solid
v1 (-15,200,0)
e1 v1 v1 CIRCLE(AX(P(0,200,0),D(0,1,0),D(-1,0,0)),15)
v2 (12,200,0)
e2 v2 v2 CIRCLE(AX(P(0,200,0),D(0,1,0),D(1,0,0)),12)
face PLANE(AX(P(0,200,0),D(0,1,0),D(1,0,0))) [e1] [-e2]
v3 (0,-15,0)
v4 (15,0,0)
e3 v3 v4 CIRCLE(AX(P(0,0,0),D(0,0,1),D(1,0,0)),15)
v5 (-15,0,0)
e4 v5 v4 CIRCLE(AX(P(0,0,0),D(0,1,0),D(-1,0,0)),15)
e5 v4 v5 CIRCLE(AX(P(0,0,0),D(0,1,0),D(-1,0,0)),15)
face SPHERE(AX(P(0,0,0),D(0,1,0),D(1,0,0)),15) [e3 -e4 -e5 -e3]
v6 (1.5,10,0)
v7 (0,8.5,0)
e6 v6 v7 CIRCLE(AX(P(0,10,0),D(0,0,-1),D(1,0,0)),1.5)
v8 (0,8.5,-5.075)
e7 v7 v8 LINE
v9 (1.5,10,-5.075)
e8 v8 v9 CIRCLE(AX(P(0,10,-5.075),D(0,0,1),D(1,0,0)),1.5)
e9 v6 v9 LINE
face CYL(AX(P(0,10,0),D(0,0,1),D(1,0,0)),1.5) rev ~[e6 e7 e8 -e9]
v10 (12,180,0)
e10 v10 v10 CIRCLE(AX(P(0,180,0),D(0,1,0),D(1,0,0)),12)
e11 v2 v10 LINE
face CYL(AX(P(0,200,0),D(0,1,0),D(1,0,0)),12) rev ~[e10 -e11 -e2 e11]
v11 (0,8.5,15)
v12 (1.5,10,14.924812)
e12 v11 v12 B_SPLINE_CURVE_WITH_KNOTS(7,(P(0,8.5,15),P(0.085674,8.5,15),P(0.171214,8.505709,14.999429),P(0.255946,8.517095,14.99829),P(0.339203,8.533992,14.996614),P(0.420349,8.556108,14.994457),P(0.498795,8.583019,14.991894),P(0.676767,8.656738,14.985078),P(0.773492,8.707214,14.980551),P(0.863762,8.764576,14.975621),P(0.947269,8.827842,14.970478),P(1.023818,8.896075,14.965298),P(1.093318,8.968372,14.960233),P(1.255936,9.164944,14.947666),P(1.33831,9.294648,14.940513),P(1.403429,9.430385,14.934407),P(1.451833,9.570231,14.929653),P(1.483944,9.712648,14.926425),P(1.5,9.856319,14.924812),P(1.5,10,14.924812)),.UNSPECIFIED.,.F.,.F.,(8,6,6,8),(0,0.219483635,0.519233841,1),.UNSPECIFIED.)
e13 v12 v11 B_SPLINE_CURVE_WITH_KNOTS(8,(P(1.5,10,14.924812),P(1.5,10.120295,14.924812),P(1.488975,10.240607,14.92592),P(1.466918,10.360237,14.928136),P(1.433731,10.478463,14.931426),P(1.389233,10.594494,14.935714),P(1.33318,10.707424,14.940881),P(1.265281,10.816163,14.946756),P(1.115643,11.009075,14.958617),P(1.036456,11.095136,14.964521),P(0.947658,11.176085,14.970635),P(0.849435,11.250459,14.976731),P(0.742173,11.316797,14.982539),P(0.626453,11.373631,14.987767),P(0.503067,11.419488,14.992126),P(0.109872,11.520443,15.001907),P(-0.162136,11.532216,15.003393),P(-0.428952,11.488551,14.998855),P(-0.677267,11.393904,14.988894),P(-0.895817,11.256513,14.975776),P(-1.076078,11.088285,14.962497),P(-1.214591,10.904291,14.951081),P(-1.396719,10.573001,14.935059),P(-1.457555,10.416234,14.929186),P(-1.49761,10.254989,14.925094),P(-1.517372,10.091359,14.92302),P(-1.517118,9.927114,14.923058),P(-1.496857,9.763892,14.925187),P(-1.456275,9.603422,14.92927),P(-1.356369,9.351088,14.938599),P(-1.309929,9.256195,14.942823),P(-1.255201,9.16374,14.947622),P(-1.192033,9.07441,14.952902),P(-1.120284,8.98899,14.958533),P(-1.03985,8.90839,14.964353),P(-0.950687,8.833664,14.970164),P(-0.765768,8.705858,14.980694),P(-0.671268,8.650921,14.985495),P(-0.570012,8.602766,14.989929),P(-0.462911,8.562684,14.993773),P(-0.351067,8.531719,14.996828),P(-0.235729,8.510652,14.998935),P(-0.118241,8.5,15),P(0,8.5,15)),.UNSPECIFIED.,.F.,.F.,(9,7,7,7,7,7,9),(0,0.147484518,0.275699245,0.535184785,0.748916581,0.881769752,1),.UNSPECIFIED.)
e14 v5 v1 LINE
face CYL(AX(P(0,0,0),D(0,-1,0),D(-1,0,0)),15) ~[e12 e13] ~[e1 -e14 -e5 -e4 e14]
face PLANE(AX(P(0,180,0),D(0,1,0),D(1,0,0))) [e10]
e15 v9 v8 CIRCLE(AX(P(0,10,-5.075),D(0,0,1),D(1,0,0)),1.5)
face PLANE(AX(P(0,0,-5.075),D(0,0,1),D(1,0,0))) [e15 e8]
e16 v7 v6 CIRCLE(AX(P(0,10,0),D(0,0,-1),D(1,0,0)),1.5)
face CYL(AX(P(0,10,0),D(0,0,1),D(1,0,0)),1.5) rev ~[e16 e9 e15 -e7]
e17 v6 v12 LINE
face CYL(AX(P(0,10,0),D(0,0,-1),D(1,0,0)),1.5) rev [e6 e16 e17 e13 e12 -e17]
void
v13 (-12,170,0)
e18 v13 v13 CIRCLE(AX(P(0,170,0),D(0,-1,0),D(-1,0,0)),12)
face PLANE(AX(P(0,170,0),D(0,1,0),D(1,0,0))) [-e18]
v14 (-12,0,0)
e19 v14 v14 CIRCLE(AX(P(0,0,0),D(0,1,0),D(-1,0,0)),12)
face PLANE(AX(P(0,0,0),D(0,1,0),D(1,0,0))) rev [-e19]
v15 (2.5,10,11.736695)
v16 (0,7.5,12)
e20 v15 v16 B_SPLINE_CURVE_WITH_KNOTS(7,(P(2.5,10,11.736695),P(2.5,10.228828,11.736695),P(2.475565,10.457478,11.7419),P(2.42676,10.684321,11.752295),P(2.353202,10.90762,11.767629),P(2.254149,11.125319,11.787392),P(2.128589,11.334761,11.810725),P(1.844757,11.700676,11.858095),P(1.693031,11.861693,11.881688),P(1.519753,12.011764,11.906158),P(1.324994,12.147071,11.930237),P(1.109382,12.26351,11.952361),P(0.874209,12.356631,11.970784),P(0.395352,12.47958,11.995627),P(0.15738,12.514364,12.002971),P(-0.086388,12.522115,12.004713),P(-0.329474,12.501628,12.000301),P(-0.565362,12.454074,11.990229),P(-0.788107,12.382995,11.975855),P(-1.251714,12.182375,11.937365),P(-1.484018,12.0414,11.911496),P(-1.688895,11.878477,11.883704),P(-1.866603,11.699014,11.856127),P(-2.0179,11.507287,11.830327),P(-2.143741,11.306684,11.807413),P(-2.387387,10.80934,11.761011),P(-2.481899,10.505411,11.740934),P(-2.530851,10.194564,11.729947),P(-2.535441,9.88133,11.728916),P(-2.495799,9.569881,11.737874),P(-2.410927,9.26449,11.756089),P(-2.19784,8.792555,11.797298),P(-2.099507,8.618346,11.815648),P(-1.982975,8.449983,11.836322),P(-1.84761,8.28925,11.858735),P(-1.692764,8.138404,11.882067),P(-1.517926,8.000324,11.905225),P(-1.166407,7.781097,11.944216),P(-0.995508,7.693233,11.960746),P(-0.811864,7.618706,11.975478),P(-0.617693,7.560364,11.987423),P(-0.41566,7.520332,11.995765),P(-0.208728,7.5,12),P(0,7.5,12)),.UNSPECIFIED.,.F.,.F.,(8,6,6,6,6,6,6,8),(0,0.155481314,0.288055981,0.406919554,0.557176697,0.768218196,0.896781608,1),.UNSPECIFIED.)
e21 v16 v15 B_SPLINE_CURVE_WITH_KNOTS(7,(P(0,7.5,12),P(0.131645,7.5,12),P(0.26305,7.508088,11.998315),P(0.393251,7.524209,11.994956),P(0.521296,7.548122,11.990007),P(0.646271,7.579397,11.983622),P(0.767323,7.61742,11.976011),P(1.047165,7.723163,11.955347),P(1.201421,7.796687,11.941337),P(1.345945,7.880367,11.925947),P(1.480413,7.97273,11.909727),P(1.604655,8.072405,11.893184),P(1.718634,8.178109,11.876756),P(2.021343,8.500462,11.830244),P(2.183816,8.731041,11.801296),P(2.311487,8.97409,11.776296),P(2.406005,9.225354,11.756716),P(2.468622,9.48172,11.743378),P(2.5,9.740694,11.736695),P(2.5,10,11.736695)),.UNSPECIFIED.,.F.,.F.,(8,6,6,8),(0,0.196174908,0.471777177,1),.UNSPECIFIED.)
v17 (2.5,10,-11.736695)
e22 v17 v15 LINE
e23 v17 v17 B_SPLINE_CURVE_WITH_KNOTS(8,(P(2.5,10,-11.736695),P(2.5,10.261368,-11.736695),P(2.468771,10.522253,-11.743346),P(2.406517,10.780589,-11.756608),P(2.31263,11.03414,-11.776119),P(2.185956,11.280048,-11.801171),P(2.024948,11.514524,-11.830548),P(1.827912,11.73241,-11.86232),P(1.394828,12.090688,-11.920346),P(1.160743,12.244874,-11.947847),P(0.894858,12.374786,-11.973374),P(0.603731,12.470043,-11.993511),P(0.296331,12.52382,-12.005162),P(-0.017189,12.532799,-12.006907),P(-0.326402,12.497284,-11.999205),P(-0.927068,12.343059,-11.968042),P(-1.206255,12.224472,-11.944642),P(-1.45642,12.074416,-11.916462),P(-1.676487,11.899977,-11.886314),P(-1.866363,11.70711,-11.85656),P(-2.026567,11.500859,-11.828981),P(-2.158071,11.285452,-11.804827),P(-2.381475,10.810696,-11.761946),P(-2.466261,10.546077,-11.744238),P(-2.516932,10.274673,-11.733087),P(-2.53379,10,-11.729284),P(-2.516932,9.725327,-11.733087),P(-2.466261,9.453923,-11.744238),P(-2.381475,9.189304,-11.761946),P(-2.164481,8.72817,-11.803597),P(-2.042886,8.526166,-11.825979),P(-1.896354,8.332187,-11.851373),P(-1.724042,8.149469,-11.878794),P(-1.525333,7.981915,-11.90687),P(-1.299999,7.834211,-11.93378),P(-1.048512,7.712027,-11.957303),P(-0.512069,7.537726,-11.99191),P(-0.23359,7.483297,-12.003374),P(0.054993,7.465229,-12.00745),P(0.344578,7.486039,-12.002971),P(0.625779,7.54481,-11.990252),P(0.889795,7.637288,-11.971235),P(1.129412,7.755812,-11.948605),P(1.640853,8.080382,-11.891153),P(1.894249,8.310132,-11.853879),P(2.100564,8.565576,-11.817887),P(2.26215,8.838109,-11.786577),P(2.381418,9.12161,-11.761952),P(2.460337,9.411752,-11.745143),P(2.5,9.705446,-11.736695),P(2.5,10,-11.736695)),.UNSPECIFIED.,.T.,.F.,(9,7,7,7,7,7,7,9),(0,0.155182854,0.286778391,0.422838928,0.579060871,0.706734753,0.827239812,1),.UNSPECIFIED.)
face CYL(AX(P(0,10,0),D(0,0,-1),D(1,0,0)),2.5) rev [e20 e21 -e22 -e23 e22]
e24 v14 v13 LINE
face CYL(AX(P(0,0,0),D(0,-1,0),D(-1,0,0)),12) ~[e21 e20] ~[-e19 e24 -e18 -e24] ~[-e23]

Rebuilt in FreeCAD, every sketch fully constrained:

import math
import FreeCAD as App
import Part
import Sketcher

V = App.Vector

doc = App.newDocument("Part")
params = doc.addObject("Spreadsheet::Sheet", "Params")
for row, (alias, value) in enumerate([
    ("sketch1_diameter", "30 mm"),
    ("sketch1_diameter2", "24 mm"),
    ("pad1_length", "200 mm"),
    ("sketch2_radius", "15 mm"),
    ("revolution_angle", "360 deg"),
    ("sketch3_diameter", "3 mm"),
    ("pocket1_length", "200 mm"),
    ("sketch4_diameter", "5 mm"),
    ("sketch5_diameter", "5 mm"),
    ("sketch5_diameter2", "3 mm"),
    ("pad3_length", "12 mm"),
    ("sketch6_diameter", "3 mm"),
    ("pocket2_length", "5.075 mm"),
    ("sketch7_diameter", "24 mm"),
    ("pad4_length", "30 mm"),
    ("sketch8_diameter", "24 mm"),
    ("pocket3_length", "20 mm"),
], start=1):
    params.set(f"A{row}", alias)
    params.set(f"B{row}", "=" + value)
    params.setAlias(f"B{row}", alias)

body = doc.addObject("PartDesign::Body", "Body")

sketch1 = body.newObject("Sketcher::SketchObject", "Sketch")
sketch1.AttachmentSupport = (doc.getObject("XZ_Plane"), [""])
sketch1.MapMode = "FlatFace"
sketch1.addGeometry([
    Part.Circle(V(0, 0, 0), V(0, 0, 1), 15),
    Part.Circle(V(0, 0, 0), V(0, 0, 1), 12),
], False)
sketch1.addConstraint([
    Sketcher.Constraint("Coincident", 0, 3, -1, 1),
    Sketcher.Constraint("Coincident", 1, 3, -1, 1),
    Sketcher.Constraint("Diameter", 0, 30.0),
    Sketcher.Constraint("Diameter", 1, 24.0),
])
sketch1.setExpression("Constraints[2]", "Params.sketch1_diameter")
sketch1.setExpression("Constraints[3]", "Params.sketch1_diameter2")
pad1 = body.newObject("PartDesign::Pad", "Pad")
pad1.Profile = sketch1
pad1.setExpression("Length", "Params.pad1_length")
pad1.Reversed = True

sketch2 = body.newObject("Sketcher::SketchObject", "Sketch001")
sketch2.AttachmentSupport = (doc.getObject("XY_Plane"), [""])
sketch2.MapMode = "FlatFace"
sketch2.addGeometry([
    Part.LineSegment(V(15, 0, 0), V(0, 0, 0)),
    Part.LineSegment(V(0, 0, 0), V(0, -15, 0)),
    Part.ArcOfCircle(Part.Circle(V(0, 0, 0), V(0, 0, 1), 15), math.radians(-90), math.radians(0)),
], False)
sketch2.addConstraint([
    Sketcher.Constraint("Coincident", 0, 2, 1, 1),
    Sketcher.Constraint("Coincident", 1, 2, 2, 1),
    Sketcher.Constraint("Coincident", 2, 2, 0, 1),
    Sketcher.Constraint("Horizontal", 0),
    Sketcher.Constraint("Vertical", 1),
    Sketcher.Constraint("Coincident", 2, 3, -1, 1),
    Sketcher.Constraint("Coincident", 0, 2, -1, 1),
    Sketcher.Constraint("Radius", 2, 15.0),
])
sketch2.setExpression("Constraints[7]", "Params.sketch2_radius")
revolution = body.newObject("PartDesign::Revolution", "Revolution")
revolution.Profile = sketch2
revolution.ReferenceAxis = (sketch2, ["V_Axis"])
revolution.setExpression("Angle", "Params.revolution_angle")

sketch3 = body.newObject("Sketcher::SketchObject", "Sketch002")
sketch3.AttachmentSupport = (doc.getObject("XY_Plane"), [""])
sketch3.MapMode = "FlatFace"
sketch3.addGeometry(Part.Circle(V(0, 10, 0), V(0, 0, 1), 1.5), False)
sketch3.addConstraint([
    Sketcher.Constraint("PointOnObject", 0, 3, -2),
    Sketcher.Constraint("Diameter", 0, 3.0),
    Sketcher.Constraint("DistanceY", -1, 1, 0, 3, 10.0),
])
sketch3.setExpression("Constraints[1]", "Params.sketch3_diameter")
pocket1 = body.newObject("PartDesign::Pocket", "Pocket")
pocket1.Profile = sketch3
pocket1.setExpression("Length", "Params.pocket1_length")
pocket1.Reversed = True

sketch4 = body.newObject("Sketcher::SketchObject", "Sketch003")
sketch4.AttachmentSupport = (doc.getObject("XY_Plane"), [""])
sketch4.MapMode = "FlatFace"
sketch4.addGeometry(Part.Circle(V(0, 10, 0), V(0, 0, 1), 2.5), False)
sketch4.addConstraint([
    Sketcher.Constraint("PointOnObject", 0, 3, -2),
    Sketcher.Constraint("Diameter", 0, 5.0),
    Sketcher.Constraint("DistanceY", -1, 1, 0, 3, 10.0),
])
sketch4.setExpression("Constraints[1]", "Params.sketch4_diameter")
pad2 = body.newObject("PartDesign::Pad", "Pad001")
pad2.Profile = sketch4
pad2.Type = "UpToFirst"
pad2.Reversed = True

sketch5 = body.newObject("Sketcher::SketchObject", "Sketch004")
sketch5.AttachmentSupport = (doc.getObject("XY_Plane"), [""])
sketch5.MapMode = "FlatFace"
sketch5.addGeometry([
    Part.Circle(V(0, 10, 0), V(0, 0, 1), 2.5),
    Part.Circle(V(0, 10, 0), V(0, 0, 1), 1.5),
], False)
sketch5.addConstraint([
    Sketcher.Constraint("Coincident", 1, 3, 0, 3),
    Sketcher.Constraint("PointOnObject", 0, 3, -2),
    Sketcher.Constraint("Diameter", 0, 5.0),
    Sketcher.Constraint("Diameter", 1, 3.0),
    Sketcher.Constraint("DistanceY", -1, 1, 0, 3, 10.0),
])
sketch5.setExpression("Constraints[2]", "Params.sketch5_diameter")
sketch5.setExpression("Constraints[3]", "Params.sketch5_diameter2")
pad3 = body.newObject("PartDesign::Pad", "Pad002")
pad3.Profile = sketch5
pad3.setExpression("Length", "Params.pad3_length")

sketch6 = body.newObject("Sketcher::SketchObject", "Sketch005")
sketch6.AttachmentSupport = (doc.getObject("XY_Plane"), [""])
sketch6.MapMode = "FlatFace"
sketch6.addGeometry(Part.Circle(V(0, 10, 0), V(0, 0, 1), 1.5), False)
sketch6.addConstraint([
    Sketcher.Constraint("PointOnObject", 0, 3, -2),
    Sketcher.Constraint("Diameter", 0, 3.0),
    Sketcher.Constraint("DistanceY", -1, 1, 0, 3, 10.0),
])
sketch6.setExpression("Constraints[1]", "Params.sketch6_diameter")
pocket2 = body.newObject("PartDesign::Pocket", "Pocket001")
pocket2.Profile = sketch6
pocket2.setExpression("Length", "Params.pocket2_length")

sketch7 = body.newObject("Sketcher::SketchObject", "Sketch006")
sketch7.AttachmentSupport = (doc.getObject("XZ_Plane"), [""])
sketch7.MapMode = "FlatFace"
sketch7.AttachmentOffset = App.Placement(V(0, 0, -200), App.Rotation())
sketch7.addGeometry(Part.Circle(V(0, 0, 0), V(0, 0, 1), 12), False)
sketch7.addConstraint([
    Sketcher.Constraint("Coincident", 0, 3, -1, 1),
    Sketcher.Constraint("Diameter", 0, 24.0),
])
sketch7.setExpression("Constraints[1]", "Params.sketch7_diameter")
pad4 = body.newObject("PartDesign::Pad", "Pad003")
pad4.Profile = sketch7
pad4.setExpression("Length", "Params.pad4_length")

sketch8 = body.newObject("Sketcher::SketchObject", "Sketch007")
sketch8.AttachmentSupport = (doc.getObject("XZ_Plane"), [""])
sketch8.MapMode = "FlatFace"
sketch8.AttachmentOffset = App.Placement(V(0, 0, -200), App.Rotation())
sketch8.addGeometry(Part.Circle(V(0, 0, 0), V(0, 0, 1), 12), False)
sketch8.addConstraint([
    Sketcher.Constraint("Coincident", 0, 3, -1, 1),
    Sketcher.Constraint("Diameter", 0, 24.0),
])
sketch8.setExpression("Constraints[1]", "Params.sketch8_diameter")
pocket3 = body.newObject("PartDesign::Pocket", "Pocket002")
pocket3.Profile = sketch8
pocket3.setExpression("Length", "Params.pocket3_length")
pocket3.Reversed = True

doc.recompute()
